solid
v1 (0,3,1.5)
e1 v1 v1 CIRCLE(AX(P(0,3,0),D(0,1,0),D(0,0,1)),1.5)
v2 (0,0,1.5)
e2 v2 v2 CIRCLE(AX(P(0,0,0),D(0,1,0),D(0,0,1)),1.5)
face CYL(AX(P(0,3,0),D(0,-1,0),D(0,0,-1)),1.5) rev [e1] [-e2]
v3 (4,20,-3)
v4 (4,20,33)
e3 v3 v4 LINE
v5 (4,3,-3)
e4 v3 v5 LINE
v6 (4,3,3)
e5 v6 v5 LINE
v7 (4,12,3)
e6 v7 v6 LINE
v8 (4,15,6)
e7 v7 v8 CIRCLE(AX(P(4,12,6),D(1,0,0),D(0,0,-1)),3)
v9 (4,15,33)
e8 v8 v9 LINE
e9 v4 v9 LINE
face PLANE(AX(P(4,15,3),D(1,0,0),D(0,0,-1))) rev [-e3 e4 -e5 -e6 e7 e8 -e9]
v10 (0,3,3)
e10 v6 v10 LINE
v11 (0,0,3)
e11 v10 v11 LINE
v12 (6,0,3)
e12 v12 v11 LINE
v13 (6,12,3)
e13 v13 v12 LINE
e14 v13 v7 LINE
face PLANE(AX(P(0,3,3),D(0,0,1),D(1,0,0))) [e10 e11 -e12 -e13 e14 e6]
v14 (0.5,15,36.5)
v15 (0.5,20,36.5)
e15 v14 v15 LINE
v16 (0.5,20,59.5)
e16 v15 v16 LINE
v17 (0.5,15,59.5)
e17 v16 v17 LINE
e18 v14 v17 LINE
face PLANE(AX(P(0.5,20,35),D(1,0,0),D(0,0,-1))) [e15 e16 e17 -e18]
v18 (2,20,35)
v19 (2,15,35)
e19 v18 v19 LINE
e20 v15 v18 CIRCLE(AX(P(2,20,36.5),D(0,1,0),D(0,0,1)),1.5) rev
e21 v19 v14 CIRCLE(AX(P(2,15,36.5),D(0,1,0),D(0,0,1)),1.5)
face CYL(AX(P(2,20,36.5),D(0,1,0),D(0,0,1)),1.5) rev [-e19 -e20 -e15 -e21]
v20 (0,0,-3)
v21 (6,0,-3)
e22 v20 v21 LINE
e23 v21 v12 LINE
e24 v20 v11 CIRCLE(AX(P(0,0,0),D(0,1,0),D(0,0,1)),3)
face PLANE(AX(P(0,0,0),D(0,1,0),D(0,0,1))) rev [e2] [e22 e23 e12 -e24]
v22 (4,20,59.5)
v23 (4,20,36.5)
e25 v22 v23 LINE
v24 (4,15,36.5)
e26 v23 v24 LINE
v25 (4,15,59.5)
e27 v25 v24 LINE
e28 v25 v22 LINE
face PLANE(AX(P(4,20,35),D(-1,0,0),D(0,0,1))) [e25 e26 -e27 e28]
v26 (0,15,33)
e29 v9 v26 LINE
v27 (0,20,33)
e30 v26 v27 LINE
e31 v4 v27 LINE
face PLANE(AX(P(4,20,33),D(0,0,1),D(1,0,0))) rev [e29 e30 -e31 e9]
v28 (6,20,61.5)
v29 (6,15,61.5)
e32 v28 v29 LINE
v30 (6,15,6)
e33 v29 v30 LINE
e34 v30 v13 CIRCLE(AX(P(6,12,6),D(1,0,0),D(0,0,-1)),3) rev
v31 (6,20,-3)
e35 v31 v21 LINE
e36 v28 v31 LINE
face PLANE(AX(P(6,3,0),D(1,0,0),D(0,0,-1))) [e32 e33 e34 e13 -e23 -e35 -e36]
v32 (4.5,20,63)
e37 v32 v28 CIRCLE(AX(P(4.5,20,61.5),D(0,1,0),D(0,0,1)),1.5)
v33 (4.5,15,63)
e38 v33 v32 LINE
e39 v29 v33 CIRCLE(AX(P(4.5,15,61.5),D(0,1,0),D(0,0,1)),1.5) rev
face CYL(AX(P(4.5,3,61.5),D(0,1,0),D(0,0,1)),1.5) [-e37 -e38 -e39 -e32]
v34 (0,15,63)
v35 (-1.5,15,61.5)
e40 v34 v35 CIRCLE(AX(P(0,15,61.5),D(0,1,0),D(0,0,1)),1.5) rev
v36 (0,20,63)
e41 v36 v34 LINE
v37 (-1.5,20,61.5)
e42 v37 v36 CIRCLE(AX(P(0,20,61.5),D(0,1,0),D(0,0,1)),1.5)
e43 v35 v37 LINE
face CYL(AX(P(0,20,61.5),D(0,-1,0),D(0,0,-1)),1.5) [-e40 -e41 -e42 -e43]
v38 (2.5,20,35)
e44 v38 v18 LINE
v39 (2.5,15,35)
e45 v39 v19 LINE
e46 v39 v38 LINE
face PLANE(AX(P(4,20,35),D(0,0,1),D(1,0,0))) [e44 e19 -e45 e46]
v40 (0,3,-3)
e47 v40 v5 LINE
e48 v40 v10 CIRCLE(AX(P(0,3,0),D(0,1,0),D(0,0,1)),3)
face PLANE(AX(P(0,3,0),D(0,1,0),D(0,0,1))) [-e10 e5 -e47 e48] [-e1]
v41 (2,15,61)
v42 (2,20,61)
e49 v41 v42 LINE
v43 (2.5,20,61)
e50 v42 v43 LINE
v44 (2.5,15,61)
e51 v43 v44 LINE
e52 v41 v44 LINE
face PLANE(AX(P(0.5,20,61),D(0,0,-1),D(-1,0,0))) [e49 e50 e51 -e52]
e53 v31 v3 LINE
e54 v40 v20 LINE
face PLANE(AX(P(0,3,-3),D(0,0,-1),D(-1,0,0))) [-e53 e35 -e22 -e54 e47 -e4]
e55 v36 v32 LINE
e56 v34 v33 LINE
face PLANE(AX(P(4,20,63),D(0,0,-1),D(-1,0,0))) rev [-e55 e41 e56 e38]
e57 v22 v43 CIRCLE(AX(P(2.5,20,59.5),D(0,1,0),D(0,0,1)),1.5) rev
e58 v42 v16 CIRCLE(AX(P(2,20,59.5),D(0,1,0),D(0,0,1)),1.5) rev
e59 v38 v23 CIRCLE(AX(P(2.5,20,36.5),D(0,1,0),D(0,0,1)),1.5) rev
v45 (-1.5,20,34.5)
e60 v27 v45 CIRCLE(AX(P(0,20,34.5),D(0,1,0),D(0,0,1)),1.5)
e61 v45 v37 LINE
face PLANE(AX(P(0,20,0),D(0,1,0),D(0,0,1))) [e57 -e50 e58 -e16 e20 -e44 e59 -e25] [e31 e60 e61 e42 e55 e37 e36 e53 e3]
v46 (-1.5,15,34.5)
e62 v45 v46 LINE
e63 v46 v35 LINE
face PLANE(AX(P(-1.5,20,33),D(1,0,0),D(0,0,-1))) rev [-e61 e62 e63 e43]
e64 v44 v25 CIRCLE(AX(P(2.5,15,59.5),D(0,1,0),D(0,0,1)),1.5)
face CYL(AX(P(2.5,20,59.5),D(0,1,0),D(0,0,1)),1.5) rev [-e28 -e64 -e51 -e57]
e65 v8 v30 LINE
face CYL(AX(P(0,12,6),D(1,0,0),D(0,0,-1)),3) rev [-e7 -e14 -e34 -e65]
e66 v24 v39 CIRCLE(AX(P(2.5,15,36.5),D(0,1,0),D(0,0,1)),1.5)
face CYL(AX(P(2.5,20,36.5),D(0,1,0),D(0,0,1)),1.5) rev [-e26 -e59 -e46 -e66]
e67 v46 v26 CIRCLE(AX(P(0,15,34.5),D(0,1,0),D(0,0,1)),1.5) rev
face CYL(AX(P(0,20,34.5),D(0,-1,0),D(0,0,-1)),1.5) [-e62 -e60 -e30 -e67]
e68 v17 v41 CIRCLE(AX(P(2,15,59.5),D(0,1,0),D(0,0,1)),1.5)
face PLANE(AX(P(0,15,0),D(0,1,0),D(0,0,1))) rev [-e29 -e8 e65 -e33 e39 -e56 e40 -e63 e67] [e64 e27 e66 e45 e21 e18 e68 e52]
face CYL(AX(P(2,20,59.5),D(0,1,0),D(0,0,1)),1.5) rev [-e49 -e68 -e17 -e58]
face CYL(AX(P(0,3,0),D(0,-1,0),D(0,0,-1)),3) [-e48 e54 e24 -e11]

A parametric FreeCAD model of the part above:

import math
import FreeCAD as App
import Part
import Sketcher
from FreeCAD import Vector
Q = App.Units.Quantity


def edges_at(feature, points):
    """Names of the edges that pass closest to the given points."""
    edges = feature.Shape.Edges
    near = lambda p: min(range(len(edges)), key=lambda i: edges[i].distToShape(Part.Vertex(*p))[0])
    return sorted({f"Edge{near(p) + 1}" for p in points})

doc = App.newDocument("Part")
body = doc.addObject("PartDesign::Body", "Body")

sketch1 = body.newObject("Sketcher::SketchObject", "Sketch")
sketch1.AttachmentSupport = (doc.getObject("XZ_Plane"), [""])
sketch1.MapMode = "FlatFace"
sketch1.addGeometry(Part.LineSegment(Vector(6, -3, 0), Vector(0, -3, 0)), False)
sketch1.addGeometry(Part.ArcOfCircle(Part.Circle(Vector(0, 0, 0), Vector(0, 0, 1), 3), math.radians(90), math.radians(270)), False)
sketch1.addGeometry(Part.LineSegment(Vector(0, 3, 0), Vector(6, 3, 0)), False)
sketch1.addGeometry(Part.LineSegment(Vector(6, 3, 0), Vector(6, -3, 0)), False)
sketch1.addGeometry(Part.Circle(Vector(0, 0, 0), Vector(0, 0, 1), 1.5), False)
sketch1.addConstraint(Sketcher.Constraint("Tangent", 0, 2, 1, 2))
sketch1.addConstraint(Sketcher.Constraint("Tangent", 1, 1, 2, 1))
sketch1.addConstraint(Sketcher.Constraint("Coincident", 2, 2, 3, 1))
sketch1.addConstraint(Sketcher.Constraint("Coincident", 3, 2, 0, 1))
sketch1.addConstraint(Sketcher.Constraint("Horizontal", 0))
sketch1.addConstraint(Sketcher.Constraint("Horizontal", 2))
sketch1.addConstraint(Sketcher.Constraint("Vertical", 3))
sketch1.addConstraint(Sketcher.Constraint("Coincident", 1, 3, -1, 1))
sketch1.addConstraint(Sketcher.Constraint("Coincident", 4, 3, -1, 1))
sketch1.addConstraint(Sketcher.Constraint("Equal", 2, 3))
sketch1.addConstraint(Sketcher.Constraint("Diameter", 4, Q("3 mm")))
sketch1.addConstraint(Sketcher.Constraint("Radius", 1, Q("3 mm")))
pad1 = body.newObject("PartDesign::Pad", "Pad")
pad1.Profile = sketch1
pad1.Length = 3
pad1.Reversed = True

sketch2 = body.newObject("Sketcher::SketchObject", "Sketch001")
sketch2.AttachmentSupport = (doc.getObject("XZ_Plane"), [""])
sketch2.MapMode = "FlatFace"
sketch2.addGeometry(Part.LineSegment(Vector(4, -3, 0), Vector(4, 3, 0)), False)
sketch2.addGeometry(Part.LineSegment(Vector(4, 3, 0), Vector(6, 3, 0)), False)
sketch2.addGeometry(Part.LineSegment(Vector(6, 3, 0), Vector(6, -3, 0)), False)
sketch2.addGeometry(Part.LineSegment(Vector(6, -3, 0), Vector(4, -3, 0)), False)
sketch2.addConstraint(Sketcher.Constraint("Coincident", 0, 2, 1, 1))
sketch2.addConstraint(Sketcher.Constraint("Coincident", 1, 2, 2, 1))
sketch2.addConstraint(Sketcher.Constraint("Coincident", 2, 2, 3, 1))
sketch2.addConstraint(Sketcher.Constraint("Coincident", 3, 2, 0, 1))
sketch2.addConstraint(Sketcher.Constraint("Vertical", 0))
sketch2.addConstraint(Sketcher.Constraint("Horizontal", 1))
sketch2.addConstraint(Sketcher.Constraint("Vertical", 2))
sketch2.addConstraint(Sketcher.Constraint("Horizontal", 3))
sketch2.addConstraint(Sketcher.Constraint("DistanceX", 1, 1, 1, 2, Q("2 mm")))
sketch2.addConstraint(Sketcher.Constraint("DistanceY", 0, 1, 0, 2, Q("6 mm")))
sketch2.addConstraint(Sketcher.Constraint("DistanceX", -1, 1, 0, 2, Q("4 mm")))
sketch2.addConstraint(Sketcher.Constraint("DistanceY", -1, 1, 0, 2, Q("3 mm")))
pad2 = body.newObject("PartDesign::Pad", "Pad001")
pad2.Profile = sketch2
pad2.Length = 15
pad2.Reversed = True

sketch3 = body.newObject("Sketcher::SketchObject", "Sketch002")
sketch3.AttachmentSupport = (doc.getObject("XZ_Plane"), [""])
sketch3.MapMode = "FlatFace"
sketch3.AttachmentOffset = App.Placement(Vector(0, 0, -15), App.Rotation())
sketch3.addGeometry(Part.LineSegment(Vector(6, 63, 0), Vector(6, -3, 0)), False)
sketch3.addGeometry(Part.LineSegment(Vector(6, -3, 0), Vector(4, -3, 0)), False)
sketch3.addGeometry(Part.LineSegment(Vector(4, -3, 0), Vector(4, 33, 0)), False)
sketch3.addGeometry(Part.LineSegment(Vector(4, 33, 0), Vector(-1.5, 33, 0)), False)
sketch3.addGeometry(Part.LineSegment(Vector(-1.5, 33, 0), Vector(-1.5, 63, 0)), False)
sketch3.addGeometry(Part.LineSegment(Vector(-1.5, 63, 0), Vector(6, 63, 0)), False)
sketch3.addGeometry(Part.LineSegment(Vector(0.5, 61, 0), Vector(0.5, 35, 0)), False)
sketch3.addGeometry(Part.LineSegment(Vector(0.5, 35, 0), Vector(4, 35, 0)), False)
sketch3.addGeometry(Part.LineSegment(Vector(4, 35, 0), Vector(4, 61, 0)), False)
sketch3.addGeometry(Part.LineSegment(Vector(4, 61, 0), Vector(0.5, 61, 0)), False)
sketch3.addConstraint(Sketcher.Constraint("Coincident", 0, 2, 1, 1))
sketch3.addConstraint(Sketcher.Constraint("Coincident", 1, 2, 2, 1))
sketch3.addConstraint(Sketcher.Constraint("Coincident", 2, 2, 3, 1))
sketch3.addConstraint(Sketcher.Constraint("Coincident", 3, 2, 4, 1))
sketch3.addConstraint(Sketcher.Constraint("Coincident", 4, 2, 5, 1))
sketch3.addConstraint(Sketcher.Constraint("Coincident", 5, 2, 0, 1))
sketch3.addConstraint(Sketcher.Constraint("Coincident", 6, 2, 7, 1))
sketch3.addConstraint(Sketcher.Constraint("Coincident", 7, 2, 8, 1))
sketch3.addConstraint(Sketcher.Constraint("Coincident", 8, 2, 9, 1))
sketch3.addConstraint(Sketcher.Constraint("Coincident", 9, 2, 6, 1))
sketch3.addConstraint(Sketcher.Constraint("Vertical", 0))
sketch3.addConstraint(Sketcher.Constraint("Horizontal", 1))
sketch3.addConstraint(Sketcher.Constraint("Vertical", 2))
sketch3.addConstraint(Sketcher.Constraint("Horizontal", 3))
sketch3.addConstraint(Sketcher.Constraint("Vertical", 4))
sketch3.addConstraint(Sketcher.Constraint("Horizontal", 5))
sketch3.addConstraint(Sketcher.Constraint("Vertical", 6))
sketch3.addConstraint(Sketcher.Constraint("Horizontal", 7))
sketch3.addConstraint(Sketcher.Constraint("Vertical", 8))
sketch3.addConstraint(Sketcher.Constraint("Horizontal", 9))
sketch3.addConstraint(Sketcher.Constraint("Vertical", 2, 2, 7, 2))
sketch3.addConstraint(Sketcher.Constraint("DistanceX", 1, 2, 1, 1, Q("2 mm")))
sketch3.addConstraint(Sketcher.Constraint("DistanceY", 0, 2, 0, 1, Q("66 mm")))
sketch3.addConstraint(Sketcher.Constraint("DistanceY", 2, 1, 2, 2, Q("36 mm")))
sketch3.addConstraint(Sketcher.Constraint("DistanceY", 6, 2, 6, 1, Q("26 mm")))
sketch3.addConstraint(Sketcher.Constraint("DistanceX", 3, 2, 3, 1, Q("5.5 mm")))
sketch3.addConstraint(Sketcher.Constraint("DistanceX", 7, 1, 7, 2, Q("3.5 mm")))
sketch3.addConstraint(Sketcher.Constraint("DistanceX", -1, 1, 0, 2, Q("6 mm")))
sketch3.addConstraint(Sketcher.Constraint("DistanceY", 0, 2, -1, 1, Q("3 mm")))
sketch3.addConstraint(Sketcher.Constraint("DistanceY", -1, 1, 6, 2, Q("35 mm")))
pad3 = body.newObject("PartDesign::Pad", "Pad002")
pad3.Profile = sketch3
pad3.Length = 5
pad3.Reversed = True
doc.recompute()

fillet = body.newObject("PartDesign::Fillet", "Fillet")
fillet.Base = (pad3, edges_at(pad3, [(5, 15, 3)]))
fillet.Radius = 3
doc.recompute()

fillet2 = body.newObject("PartDesign::Fillet", "Fillet001")
fillet2.Base = (fillet, edges_at(fillet, [
    (-1.5, 17.5, 33),
    (-1.5, 17.5, 63),
    (6, 17.5, 63),
    (4, 17.5, 35),
    (0.5, 17.5, 35),
    (0.5, 17.5, 61),
    (4, 17.5, 61),
]))
fillet2.Radius = 1.5

doc.recompute()
